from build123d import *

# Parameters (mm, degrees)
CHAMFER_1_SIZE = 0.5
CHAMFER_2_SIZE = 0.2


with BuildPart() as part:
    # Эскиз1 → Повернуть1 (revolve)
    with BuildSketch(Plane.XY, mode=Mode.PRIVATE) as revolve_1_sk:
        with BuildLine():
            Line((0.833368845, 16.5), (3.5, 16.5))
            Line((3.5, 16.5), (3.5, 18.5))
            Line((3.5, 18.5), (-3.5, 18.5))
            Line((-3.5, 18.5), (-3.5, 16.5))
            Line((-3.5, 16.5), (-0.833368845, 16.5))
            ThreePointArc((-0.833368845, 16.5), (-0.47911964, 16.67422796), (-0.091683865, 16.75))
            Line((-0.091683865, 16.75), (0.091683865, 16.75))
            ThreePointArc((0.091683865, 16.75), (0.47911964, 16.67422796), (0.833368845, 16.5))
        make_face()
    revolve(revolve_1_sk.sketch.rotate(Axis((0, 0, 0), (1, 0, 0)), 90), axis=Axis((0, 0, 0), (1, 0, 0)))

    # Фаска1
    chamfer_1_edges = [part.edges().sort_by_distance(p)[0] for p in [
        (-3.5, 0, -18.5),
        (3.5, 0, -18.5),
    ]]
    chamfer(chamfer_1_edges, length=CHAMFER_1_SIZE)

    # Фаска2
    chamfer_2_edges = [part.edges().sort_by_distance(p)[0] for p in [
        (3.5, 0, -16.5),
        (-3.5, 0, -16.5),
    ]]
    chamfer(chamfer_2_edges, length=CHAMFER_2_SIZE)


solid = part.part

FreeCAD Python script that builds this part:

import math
import FreeCAD as App
import Part
import Sketcher


def edges_at(feature, points):
    """Names of the edges that pass closest to the given points."""
    edges = feature.Shape.Edges
    near = lambda p: min(range(len(edges)), key=lambda i: edges[i].distToShape(Part.Vertex(*p))[0])
    return sorted({f"Edge{near(p) + 1}" for p in points})

doc = App.newDocument("Part")
body = doc.addObject("PartDesign::Body", "Body")

# Sketch on XY plane
sketch1 = body.newObject("Sketcher::SketchObject", "Sketch")
sketch1.AttachmentSupport = (doc.getObject("XY_Plane"), [""])
sketch1.MapMode = "FlatFace"
sketch1.addGeometry(Part.LineSegment(App.Vector(0.833369, 16.5, 0), App.Vector(3.5, 16.5, 0)), False)
sketch1.addGeometry(Part.LineSegment(App.Vector(3.5, 16.5, 0), App.Vector(3.5, 18.5, 0)), False)
sketch1.addGeometry(Part.LineSegment(App.Vector(3.5, 18.5, 0), App.Vector(-3.5, 18.5, 0)), False)
sketch1.addGeometry(Part.LineSegment(App.Vector(-3.5, 18.5, 0), App.Vector(-3.5, 16.5, 0)), False)
sketch1.addGeometry(Part.LineSegment(App.Vector(-3.5, 16.5, 0), App.Vector(-0.833369, 16.5, 0)), False)
sketch1.addGeometry(Part.ArcOfCircle(Part.Circle(App.Vector(0, 15.252805, 0), App.Vector(0, 0, 1), 1.5), math.radians(93.50425), math.radians(123.75062)), False)
sketch1.addGeometry(Part.LineSegment(App.Vector(-0.091684, 16.75, 0), App.Vector(0.091684, 16.75, 0)), False)
sketch1.addGeometry(Part.ArcOfCircle(Part.Circle(App.Vector(0, 15.252805, 0), App.Vector(0, 0, 1), 1.5), math.radians(56.24938), math.radians(86.49575)), False)
sketch1.addConstraint(Sketcher.Constraint("Coincident", 0, 2, 1, 1))
sketch1.addConstraint(Sketcher.Constraint("Coincident", 1, 2, 2, 1))
sketch1.addConstraint(Sketcher.Constraint("Coincident", 2, 2, 3, 1))
sketch1.addConstraint(Sketcher.Constraint("Coincident", 3, 2, 4, 1))
sketch1.addConstraint(Sketcher.Constraint("Coincident", 4, 2, 5, 2))
sketch1.addConstraint(Sketcher.Constraint("Coincident", 5, 1, 6, 1))
sketch1.addConstraint(Sketcher.Constraint("Coincident", 6, 2, 7, 2))
sketch1.addConstraint(Sketcher.Constraint("Coincident", 7, 1, 0, 1))
sketch1.addConstraint(Sketcher.Constraint("Horizontal", 0))
sketch1.addConstraint(Sketcher.Constraint("Vertical", 1))
sketch1.addConstraint(Sketcher.Constraint("Horizontal", 2))
sketch1.addConstraint(Sketcher.Constraint("Vertical", 3))
sketch1.addConstraint(Sketcher.Constraint("Horizontal", 4))
sketch1.addConstraint(Sketcher.Constraint("Horizontal", 6))
sketch1.addConstraint(Sketcher.Constraint("Coincident", 7, 3, 5, 3))
sketch1.addConstraint(Sketcher.Constraint("Equal", 5, 7))
sketch1.addConstraint(Sketcher.Constraint("Symmetric", 0, 2, 3, 2, -2))
sketch1.addConstraint(Sketcher.Constraint("PointOnObject", 5, 3, -2))
sketch1.addConstraint(Sketcher.Constraint("Radius", 5, 1.5))
sketch1.addConstraint(Sketcher.Constraint("DistanceX", 2, 2, 2, 1, 7.0))
sketch1.addConstraint(Sketcher.Constraint("DistanceY", 1, 1, 1, 2, 2.0))
sketch1.addConstraint(Sketcher.Constraint("DistanceY", -1, 1, 0, 2, 16.5))
sketch1.addConstraint(Sketcher.Constraint("DistanceY", -1, 1, 5, 1, 16.75))
sketch1.addConstraint(Sketcher.Constraint("DistanceX", 0, 1, 0, 2, 2.666631))
revolution = body.newObject("PartDesign::Revolution", "Revolution")
revolution.Profile = sketch1
revolution.ReferenceAxis = (sketch1, ["H_Axis"])
revolution.Angle = 360
doc.recompute()

chamfer = body.newObject("PartDesign::Chamfer", "Chamfer")
chamfer.Base = (revolution, edges_at(revolution, [(-3.5, 0, -18.5), (3.5, 0, -18.5)]))
chamfer.Size = 0.5
doc.recompute()

chamfer2 = body.newObject("PartDesign::Chamfer", "Chamfer001")
chamfer2.Base = (chamfer, edges_at(chamfer, [(3.5, 0, -16.5), (-3.5, 0, -16.5)]))
chamfer2.Size = 0.2

doc.recompute()
